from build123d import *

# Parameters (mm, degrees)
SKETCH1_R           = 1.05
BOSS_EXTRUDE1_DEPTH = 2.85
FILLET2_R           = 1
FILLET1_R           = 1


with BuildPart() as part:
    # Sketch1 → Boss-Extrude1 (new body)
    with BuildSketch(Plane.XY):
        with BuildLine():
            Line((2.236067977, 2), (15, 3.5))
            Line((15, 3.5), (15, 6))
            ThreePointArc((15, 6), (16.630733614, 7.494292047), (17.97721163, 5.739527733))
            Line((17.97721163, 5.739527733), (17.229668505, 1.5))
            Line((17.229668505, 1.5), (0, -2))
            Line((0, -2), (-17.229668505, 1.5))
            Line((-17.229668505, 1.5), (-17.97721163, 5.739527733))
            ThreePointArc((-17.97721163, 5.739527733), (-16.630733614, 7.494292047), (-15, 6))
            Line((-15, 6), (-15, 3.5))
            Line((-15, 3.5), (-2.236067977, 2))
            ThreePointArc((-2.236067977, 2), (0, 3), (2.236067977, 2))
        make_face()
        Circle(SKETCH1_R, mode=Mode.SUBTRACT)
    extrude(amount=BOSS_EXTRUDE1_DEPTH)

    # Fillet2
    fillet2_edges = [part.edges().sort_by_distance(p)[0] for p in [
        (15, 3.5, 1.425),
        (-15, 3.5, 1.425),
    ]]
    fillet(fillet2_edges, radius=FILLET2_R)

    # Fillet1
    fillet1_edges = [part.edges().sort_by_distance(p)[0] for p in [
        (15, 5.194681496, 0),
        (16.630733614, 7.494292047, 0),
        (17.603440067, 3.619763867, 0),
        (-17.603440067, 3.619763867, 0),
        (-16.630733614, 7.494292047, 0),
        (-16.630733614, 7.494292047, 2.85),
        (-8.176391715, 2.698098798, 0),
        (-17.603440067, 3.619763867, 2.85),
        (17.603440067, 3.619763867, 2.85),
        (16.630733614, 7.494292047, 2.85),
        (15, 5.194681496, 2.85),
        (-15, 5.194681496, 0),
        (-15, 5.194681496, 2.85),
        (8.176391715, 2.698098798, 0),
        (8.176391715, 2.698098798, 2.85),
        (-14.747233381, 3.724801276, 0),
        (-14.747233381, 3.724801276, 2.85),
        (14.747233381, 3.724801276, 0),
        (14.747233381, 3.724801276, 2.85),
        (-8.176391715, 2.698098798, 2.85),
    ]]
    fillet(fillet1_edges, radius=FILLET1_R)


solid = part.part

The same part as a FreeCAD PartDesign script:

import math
import FreeCAD as App
import Part
import Sketcher
Q = App.Units.Quantity


def edges_at(feature, points):
    """Names of the edges that pass closest to the given points."""
    edges = feature.Shape.Edges
    near = lambda p: min(range(len(edges)), key=lambda i: edges[i].distToShape(Part.Vertex(*p))[0])
    return sorted({f"Edge{near(p) + 1}" for p in points})

doc = App.newDocument("Part")
body = doc.addObject("PartDesign::Body", "Body")

sketch1 = doc.addObject("Sketcher::SketchObject", "Sketch")
body.addObject(sketch1)
sketch1.AttachmentSupport = (doc.XY_Plane, [""])
sketch1.MapMode = "FlatFace"
sketch1.addGeometry([
    Part.LineSegment(App.Vector(15, 3.5, 0), App.Vector(2.236068, 2, 0)),
    Part.ArcOfCircle(Part.Circle(App.Vector(0, 0, 0), App.Vector(0, 0, 1), 3), math.radians(41.810315), math.radians(138.189685)),
    Part.LineSegment(App.Vector(-2.236068, 2, 0), App.Vector(-15, 3.5, 0)),
    Part.LineSegment(App.Vector(-15, 3.5, 0), App.Vector(-15, 6, 0)),
    Part.ArcOfCircle(Part.Circle(App.Vector(-16.5, 6, 0), App.Vector(0, 0, 1), 1.5), math.radians(0), math.radians(190)),
    Part.LineSegment(App.Vector(-17.977212, 5.739528, 0), App.Vector(-17.229669, 1.5, 0)),
    Part.LineSegment(App.Vector(-17.229669, 1.5, 0), App.Vector(0, -2, 0)),
    Part.LineSegment(App.Vector(0, -2, 0), App.Vector(17.229669, 1.5, 0)),
    Part.LineSegment(App.Vector(17.229669, 1.5, 0), App.Vector(17.977212, 5.739528, 0)),
    Part.ArcOfCircle(Part.Circle(App.Vector(16.5, 6, 0), App.Vector(0, 0, 1), 1.5), math.radians(-10), math.radians(180)),
    Part.LineSegment(App.Vector(15, 6, 0), App.Vector(15, 3.5, 0)),
    Part.Circle(App.Vector(0, 0, 0), App.Vector(0, 0, 1), 1.05),
], False)
sketch1.addConstraint([
    Sketcher.Constraint("Coincident", 0, 2, 1, 1),
    Sketcher.Constraint("Coincident", 1, 2, 2, 1),
    Sketcher.Constraint("Coincident", 2, 2, 3, 1),
    Sketcher.Constraint("Tangent", 3, 2, 4, 1),
    Sketcher.Constraint("Tangent", 4, 2, 5, 1),
    Sketcher.Constraint("Coincident", 5, 2, 6, 1),
    Sketcher.Constraint("Coincident", 6, 2, 7, 1),
    Sketcher.Constraint("Coincident", 7, 2, 8, 1),
    Sketcher.Constraint("Tangent", 8, 2, 9, 1),
    Sketcher.Constraint("Tangent", 9, 2, 10, 1),
    Sketcher.Constraint("Coincident", 10, 2, 0, 1),
    Sketcher.Constraint("Vertical", 3),
    Sketcher.Constraint("Vertical", 10),
    Sketcher.Constraint("Coincident", 1, 3, -1, 1),
    Sketcher.Constraint("Coincident", 11, 3, -1, 1),
    Sketcher.Constraint("Equal", 4, 9),
    Sketcher.Constraint("Symmetric", 4, 3, 9, 3, -2),
    Sketcher.Constraint("Symmetric", 5, 2, 7, 2, -2),
    Sketcher.Constraint("PointOnObject", 6, 2, -2),
    Sketcher.Constraint("Horizontal", 0, 2, 1, 2),
    Sketcher.Constraint("Horizontal", 2, 2, 10, 2),
    Sketcher.Constraint("Radius", 1, 3.0),
    Sketcher.Constraint("Diameter", 11, 2.1),
    Sketcher.Constraint("Radius", 4, 1.5),
    Sketcher.Constraint("Angle", 5, Q("-80 deg")),
    Sketcher.Constraint("DistanceY", 3, 1, 3, 2, 2.5),
    Sketcher.Constraint("DistanceY", -1, 1, 4, 3, 6.0),
    Sketcher.Constraint("DistanceY", -1, 1, 0, 2, 2.0),
    Sketcher.Constraint("DistanceX", 2, 2, -1, 1, 15.0),
    Sketcher.Constraint("DistanceY", 6, 2, -1, 1, 2.0),
    Sketcher.Constraint("DistanceY", 5, 2, 2, 2, 2.0),
])
pad1 = doc.addObject("PartDesign::Pad", "Pad")
body.addObject(pad1)
pad1.Profile = sketch1
pad1.Length = 2.85
doc.recompute()

fillet = doc.addObject("PartDesign::Fillet", "Fillet")
body.addObject(fillet)
fillet.Base = (pad1, edges_at(pad1, [(15, 3.5, 1.425), (-15, 3.5, 1.425)]))
fillet.Radius = 1
doc.recompute()

fillet2 = doc.addObject("PartDesign::Fillet", "Fillet001")
body.addObject(fillet2)
fillet2.Base = (fillet, edges_at(fillet, [
    (15, 5.195, 0),
    (16.631, 7.494, 0),
    (17.603, 3.62, 0),
    (-17.603, 3.62, 0),
    (-16.631, 7.494, 0),
    (-16.631, 7.494, 2.85),
    (-8.176, 2.698, 0),
    (-17.603, 3.62, 2.85),
    (17.603, 3.62, 2.85),
    (16.631, 7.494, 2.85),
    (15, 5.195, 2.85),
    (-15, 5.195, 0),
    (-15, 5.195, 2.85),
    (8.176, 2.698, 0),
    (8.176, 2.698, 2.85),
    (-14.747, 3.725, 0),
    (-14.747, 3.725, 2.85),
    (14.747, 3.725, 0),
    (14.747, 3.725, 2.85),
    (-8.176, 2.698, 2.85),
]))
fillet2.Radius = 1

doc.recompute()
